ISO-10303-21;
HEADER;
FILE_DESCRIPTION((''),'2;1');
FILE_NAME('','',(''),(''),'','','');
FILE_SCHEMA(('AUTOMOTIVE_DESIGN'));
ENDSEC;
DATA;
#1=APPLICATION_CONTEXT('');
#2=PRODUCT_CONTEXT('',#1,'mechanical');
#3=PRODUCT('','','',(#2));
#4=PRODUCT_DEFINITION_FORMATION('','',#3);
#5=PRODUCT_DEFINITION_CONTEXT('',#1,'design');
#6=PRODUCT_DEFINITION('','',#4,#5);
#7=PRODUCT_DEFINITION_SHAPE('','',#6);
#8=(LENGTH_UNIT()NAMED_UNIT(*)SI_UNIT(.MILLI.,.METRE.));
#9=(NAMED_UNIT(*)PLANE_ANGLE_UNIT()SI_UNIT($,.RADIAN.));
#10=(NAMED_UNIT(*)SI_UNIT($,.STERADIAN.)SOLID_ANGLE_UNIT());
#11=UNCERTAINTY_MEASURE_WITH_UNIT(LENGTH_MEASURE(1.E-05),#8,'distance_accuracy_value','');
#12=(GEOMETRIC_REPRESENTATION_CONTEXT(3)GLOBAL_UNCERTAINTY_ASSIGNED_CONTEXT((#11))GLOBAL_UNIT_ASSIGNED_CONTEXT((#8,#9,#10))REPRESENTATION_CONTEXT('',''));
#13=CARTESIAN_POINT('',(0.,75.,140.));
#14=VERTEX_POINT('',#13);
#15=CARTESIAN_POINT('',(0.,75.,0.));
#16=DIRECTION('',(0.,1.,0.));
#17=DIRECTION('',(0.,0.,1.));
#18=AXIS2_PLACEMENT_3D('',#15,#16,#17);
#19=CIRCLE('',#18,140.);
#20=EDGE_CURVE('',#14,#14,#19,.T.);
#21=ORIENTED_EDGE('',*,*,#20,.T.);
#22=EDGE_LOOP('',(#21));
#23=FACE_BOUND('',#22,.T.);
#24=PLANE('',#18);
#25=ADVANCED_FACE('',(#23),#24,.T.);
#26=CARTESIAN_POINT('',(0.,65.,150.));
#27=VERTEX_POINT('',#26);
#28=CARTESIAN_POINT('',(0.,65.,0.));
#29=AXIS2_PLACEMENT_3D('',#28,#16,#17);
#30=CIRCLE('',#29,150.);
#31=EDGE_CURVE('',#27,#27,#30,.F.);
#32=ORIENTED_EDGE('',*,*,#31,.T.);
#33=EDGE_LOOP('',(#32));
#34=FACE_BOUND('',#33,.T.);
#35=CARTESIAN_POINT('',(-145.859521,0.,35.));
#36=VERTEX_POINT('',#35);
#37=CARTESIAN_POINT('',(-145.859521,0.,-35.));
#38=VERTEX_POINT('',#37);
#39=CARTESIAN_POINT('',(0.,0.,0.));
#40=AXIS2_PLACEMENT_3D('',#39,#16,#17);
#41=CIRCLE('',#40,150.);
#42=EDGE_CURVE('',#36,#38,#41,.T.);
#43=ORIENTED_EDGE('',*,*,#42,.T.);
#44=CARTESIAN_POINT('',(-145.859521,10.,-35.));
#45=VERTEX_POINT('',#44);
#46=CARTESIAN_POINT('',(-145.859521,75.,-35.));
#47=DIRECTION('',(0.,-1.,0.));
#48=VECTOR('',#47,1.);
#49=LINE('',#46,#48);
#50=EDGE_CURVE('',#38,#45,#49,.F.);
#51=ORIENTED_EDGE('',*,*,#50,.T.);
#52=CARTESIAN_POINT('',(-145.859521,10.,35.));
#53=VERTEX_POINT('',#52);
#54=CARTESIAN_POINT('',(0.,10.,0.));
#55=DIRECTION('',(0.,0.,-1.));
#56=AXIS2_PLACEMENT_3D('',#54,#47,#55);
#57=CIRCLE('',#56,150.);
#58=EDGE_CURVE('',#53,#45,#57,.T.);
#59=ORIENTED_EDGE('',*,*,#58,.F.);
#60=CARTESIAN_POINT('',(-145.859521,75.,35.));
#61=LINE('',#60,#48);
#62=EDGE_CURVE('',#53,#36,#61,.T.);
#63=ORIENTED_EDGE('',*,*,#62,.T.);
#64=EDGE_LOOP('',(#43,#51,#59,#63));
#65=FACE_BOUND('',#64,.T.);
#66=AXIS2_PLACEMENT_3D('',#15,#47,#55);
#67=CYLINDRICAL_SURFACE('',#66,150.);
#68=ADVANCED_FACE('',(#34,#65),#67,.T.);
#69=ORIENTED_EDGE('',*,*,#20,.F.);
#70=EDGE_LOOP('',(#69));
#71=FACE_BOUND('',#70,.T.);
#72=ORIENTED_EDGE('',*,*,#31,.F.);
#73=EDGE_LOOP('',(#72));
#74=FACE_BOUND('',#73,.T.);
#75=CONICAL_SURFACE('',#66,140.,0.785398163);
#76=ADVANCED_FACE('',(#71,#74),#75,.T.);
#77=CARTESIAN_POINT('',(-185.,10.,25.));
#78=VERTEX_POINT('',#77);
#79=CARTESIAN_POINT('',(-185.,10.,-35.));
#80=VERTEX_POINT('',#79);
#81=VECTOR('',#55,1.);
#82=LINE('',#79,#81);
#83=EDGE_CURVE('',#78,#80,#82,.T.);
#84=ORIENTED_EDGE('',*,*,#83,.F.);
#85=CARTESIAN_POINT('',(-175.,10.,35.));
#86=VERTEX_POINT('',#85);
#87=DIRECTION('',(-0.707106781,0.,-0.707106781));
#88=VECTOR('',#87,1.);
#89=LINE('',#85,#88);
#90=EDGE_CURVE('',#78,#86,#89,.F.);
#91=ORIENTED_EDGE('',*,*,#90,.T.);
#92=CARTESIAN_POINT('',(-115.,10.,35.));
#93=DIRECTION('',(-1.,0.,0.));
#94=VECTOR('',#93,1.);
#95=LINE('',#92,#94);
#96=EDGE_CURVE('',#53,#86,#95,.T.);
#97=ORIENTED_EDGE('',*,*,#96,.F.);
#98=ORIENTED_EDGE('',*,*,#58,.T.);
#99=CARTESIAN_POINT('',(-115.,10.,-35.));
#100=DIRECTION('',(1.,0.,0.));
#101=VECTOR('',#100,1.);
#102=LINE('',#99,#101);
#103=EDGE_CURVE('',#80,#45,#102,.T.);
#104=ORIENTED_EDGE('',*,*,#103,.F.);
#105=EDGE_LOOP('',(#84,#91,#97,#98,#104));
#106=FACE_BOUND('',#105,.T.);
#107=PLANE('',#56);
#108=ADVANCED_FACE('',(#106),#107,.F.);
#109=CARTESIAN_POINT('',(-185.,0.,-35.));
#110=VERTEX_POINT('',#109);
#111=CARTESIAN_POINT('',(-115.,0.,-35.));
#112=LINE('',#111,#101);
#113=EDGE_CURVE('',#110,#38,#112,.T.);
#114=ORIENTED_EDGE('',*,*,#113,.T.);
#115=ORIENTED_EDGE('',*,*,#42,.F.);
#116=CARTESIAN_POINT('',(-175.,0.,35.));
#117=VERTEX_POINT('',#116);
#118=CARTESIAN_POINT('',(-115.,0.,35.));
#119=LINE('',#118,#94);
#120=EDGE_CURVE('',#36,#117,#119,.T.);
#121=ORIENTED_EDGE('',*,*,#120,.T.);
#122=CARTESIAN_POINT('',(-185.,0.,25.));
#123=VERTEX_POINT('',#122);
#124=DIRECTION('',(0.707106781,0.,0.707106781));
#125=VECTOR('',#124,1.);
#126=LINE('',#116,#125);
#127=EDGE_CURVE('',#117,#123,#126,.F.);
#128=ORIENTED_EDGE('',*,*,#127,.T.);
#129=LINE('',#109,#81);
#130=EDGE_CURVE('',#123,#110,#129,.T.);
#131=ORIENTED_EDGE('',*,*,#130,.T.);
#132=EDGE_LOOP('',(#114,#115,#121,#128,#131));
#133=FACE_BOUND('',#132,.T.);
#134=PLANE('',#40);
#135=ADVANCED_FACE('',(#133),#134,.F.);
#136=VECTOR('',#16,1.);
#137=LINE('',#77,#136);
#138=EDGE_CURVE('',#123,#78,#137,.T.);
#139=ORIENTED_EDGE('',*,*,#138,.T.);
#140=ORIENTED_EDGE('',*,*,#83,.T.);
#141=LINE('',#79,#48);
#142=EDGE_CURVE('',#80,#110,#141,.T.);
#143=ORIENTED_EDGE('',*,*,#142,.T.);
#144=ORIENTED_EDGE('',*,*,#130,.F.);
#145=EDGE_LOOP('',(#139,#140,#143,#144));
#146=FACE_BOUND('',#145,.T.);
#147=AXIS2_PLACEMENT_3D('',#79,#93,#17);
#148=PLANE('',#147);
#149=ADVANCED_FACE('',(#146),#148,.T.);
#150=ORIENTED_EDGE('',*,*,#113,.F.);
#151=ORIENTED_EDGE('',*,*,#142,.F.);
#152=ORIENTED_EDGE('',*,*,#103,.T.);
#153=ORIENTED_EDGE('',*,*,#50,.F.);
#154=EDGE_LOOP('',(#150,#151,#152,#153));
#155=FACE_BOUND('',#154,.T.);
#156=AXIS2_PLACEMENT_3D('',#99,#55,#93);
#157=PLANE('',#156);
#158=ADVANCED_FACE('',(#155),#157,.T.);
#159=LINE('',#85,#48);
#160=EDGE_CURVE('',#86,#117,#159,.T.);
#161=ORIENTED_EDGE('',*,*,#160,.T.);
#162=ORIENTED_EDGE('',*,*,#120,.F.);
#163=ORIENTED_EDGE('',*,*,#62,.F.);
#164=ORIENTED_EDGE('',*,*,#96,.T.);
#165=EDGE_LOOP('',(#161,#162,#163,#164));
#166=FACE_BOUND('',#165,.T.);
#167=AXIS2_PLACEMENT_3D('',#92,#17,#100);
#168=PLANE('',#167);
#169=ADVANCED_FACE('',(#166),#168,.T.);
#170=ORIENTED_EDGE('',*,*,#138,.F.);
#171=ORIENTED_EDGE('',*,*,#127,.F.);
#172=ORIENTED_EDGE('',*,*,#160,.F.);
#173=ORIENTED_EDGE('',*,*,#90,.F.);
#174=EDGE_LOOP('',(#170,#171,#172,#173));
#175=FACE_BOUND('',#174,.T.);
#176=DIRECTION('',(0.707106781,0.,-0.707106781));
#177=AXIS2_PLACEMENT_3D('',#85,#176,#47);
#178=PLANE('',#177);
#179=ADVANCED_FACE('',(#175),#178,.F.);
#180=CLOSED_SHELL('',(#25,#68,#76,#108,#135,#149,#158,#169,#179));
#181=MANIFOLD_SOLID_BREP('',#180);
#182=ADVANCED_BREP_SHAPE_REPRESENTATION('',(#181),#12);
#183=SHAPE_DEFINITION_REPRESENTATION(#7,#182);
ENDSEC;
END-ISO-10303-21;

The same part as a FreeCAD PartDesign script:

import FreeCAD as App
import Part
import Sketcher
from FreeCAD import Vector


def edges_at(feature, points):
    """Names of the edges that pass closest to the given points."""
    edges = feature.Shape.Edges
    near = lambda p: min(range(len(edges)), key=lambda i: edges[i].distToShape(Part.Vertex(*p))[0])
    return sorted({f"Edge{near(p) + 1}" for p in points})


def add_polygon(sketch, points):
    """Adds a closed chain of lines whose ends are joined by coincident constraints."""
    first, n = sketch.GeometryCount, len(points)
    for a, b in zip(points, points[1:] + points[:1]):
        sketch.addGeometry(Part.LineSegment(App.Vector(*a, 0), App.Vector(*b, 0)), False)
    for i in range(n):
        sketch.addConstraint(Sketcher.Constraint("Coincident", first + i, 2, first + (i + 1) % n, 1))

doc = App.newDocument("Part")
body = doc.addObject("PartDesign::Body", "Body")

# Sketch on XZ plane
sketch1 = body.newObject("Sketcher::SketchObject", "Sketch")
sketch1.AttachmentSupport = (doc.getObject("XZ_Plane"), [""])
sketch1.MapMode = "FlatFace"
sketch1.addGeometry(Part.Circle(Vector(0, 0, 0), Vector(0, 0, 1), 150), False)
sketch1.addConstraint([
    Sketcher.Constraint("Coincident", 0, 3, -1, 1),
    Sketcher.Constraint("Diameter", 0, 300.0),
])
pad1 = body.newObject("PartDesign::Pad", "Pad")
pad1.Profile = sketch1
pad1.Length = 75
pad1.Reversed = True
doc.recompute()

chamfer = body.newObject("PartDesign::Chamfer", "Chamfer")
chamfer.Base = (pad1, edges_at(pad1, [(-150, 75, 0)]))
chamfer.Size = 10

# Sketch on XZ plane
sketch2 = body.newObject("Sketcher::SketchObject", "Sketch001")
sketch2.AttachmentSupport = (doc.getObject("XZ_Plane"), [""])
sketch2.MapMode = "FlatFace"
add_polygon(sketch2, [(-185, 35), (-185, -35), (-115, -35), (-115, 35)])  # lines 0-3
sketch2.addConstraint([
    Sketcher.Constraint("Vertical", 0),
    Sketcher.Constraint("Horizontal", 1),
    Sketcher.Constraint("Vertical", 2),
    Sketcher.Constraint("Horizontal", 3),
    Sketcher.Constraint("Equal", 3, 0),
    Sketcher.Constraint("DistanceX", 1, 1, 1, 2, 70.0),
    Sketcher.Constraint("DistanceX", 0, 2, -1, 1, 185.0),
    Sketcher.Constraint("DistanceY", 0, 2, -1, 1, 35.0),
])
pad2 = body.newObject("PartDesign::Pad", "Pad001")
pad2.Profile = sketch2
pad2.Length = 10
pad2.Reversed = True
doc.recompute()

chamfer2 = body.newObject("PartDesign::Chamfer", "Chamfer001")
chamfer2.Base = (pad2, edges_at(pad2, [(-185, 5, 35)]))
chamfer2.Size = 10

doc.recompute()
